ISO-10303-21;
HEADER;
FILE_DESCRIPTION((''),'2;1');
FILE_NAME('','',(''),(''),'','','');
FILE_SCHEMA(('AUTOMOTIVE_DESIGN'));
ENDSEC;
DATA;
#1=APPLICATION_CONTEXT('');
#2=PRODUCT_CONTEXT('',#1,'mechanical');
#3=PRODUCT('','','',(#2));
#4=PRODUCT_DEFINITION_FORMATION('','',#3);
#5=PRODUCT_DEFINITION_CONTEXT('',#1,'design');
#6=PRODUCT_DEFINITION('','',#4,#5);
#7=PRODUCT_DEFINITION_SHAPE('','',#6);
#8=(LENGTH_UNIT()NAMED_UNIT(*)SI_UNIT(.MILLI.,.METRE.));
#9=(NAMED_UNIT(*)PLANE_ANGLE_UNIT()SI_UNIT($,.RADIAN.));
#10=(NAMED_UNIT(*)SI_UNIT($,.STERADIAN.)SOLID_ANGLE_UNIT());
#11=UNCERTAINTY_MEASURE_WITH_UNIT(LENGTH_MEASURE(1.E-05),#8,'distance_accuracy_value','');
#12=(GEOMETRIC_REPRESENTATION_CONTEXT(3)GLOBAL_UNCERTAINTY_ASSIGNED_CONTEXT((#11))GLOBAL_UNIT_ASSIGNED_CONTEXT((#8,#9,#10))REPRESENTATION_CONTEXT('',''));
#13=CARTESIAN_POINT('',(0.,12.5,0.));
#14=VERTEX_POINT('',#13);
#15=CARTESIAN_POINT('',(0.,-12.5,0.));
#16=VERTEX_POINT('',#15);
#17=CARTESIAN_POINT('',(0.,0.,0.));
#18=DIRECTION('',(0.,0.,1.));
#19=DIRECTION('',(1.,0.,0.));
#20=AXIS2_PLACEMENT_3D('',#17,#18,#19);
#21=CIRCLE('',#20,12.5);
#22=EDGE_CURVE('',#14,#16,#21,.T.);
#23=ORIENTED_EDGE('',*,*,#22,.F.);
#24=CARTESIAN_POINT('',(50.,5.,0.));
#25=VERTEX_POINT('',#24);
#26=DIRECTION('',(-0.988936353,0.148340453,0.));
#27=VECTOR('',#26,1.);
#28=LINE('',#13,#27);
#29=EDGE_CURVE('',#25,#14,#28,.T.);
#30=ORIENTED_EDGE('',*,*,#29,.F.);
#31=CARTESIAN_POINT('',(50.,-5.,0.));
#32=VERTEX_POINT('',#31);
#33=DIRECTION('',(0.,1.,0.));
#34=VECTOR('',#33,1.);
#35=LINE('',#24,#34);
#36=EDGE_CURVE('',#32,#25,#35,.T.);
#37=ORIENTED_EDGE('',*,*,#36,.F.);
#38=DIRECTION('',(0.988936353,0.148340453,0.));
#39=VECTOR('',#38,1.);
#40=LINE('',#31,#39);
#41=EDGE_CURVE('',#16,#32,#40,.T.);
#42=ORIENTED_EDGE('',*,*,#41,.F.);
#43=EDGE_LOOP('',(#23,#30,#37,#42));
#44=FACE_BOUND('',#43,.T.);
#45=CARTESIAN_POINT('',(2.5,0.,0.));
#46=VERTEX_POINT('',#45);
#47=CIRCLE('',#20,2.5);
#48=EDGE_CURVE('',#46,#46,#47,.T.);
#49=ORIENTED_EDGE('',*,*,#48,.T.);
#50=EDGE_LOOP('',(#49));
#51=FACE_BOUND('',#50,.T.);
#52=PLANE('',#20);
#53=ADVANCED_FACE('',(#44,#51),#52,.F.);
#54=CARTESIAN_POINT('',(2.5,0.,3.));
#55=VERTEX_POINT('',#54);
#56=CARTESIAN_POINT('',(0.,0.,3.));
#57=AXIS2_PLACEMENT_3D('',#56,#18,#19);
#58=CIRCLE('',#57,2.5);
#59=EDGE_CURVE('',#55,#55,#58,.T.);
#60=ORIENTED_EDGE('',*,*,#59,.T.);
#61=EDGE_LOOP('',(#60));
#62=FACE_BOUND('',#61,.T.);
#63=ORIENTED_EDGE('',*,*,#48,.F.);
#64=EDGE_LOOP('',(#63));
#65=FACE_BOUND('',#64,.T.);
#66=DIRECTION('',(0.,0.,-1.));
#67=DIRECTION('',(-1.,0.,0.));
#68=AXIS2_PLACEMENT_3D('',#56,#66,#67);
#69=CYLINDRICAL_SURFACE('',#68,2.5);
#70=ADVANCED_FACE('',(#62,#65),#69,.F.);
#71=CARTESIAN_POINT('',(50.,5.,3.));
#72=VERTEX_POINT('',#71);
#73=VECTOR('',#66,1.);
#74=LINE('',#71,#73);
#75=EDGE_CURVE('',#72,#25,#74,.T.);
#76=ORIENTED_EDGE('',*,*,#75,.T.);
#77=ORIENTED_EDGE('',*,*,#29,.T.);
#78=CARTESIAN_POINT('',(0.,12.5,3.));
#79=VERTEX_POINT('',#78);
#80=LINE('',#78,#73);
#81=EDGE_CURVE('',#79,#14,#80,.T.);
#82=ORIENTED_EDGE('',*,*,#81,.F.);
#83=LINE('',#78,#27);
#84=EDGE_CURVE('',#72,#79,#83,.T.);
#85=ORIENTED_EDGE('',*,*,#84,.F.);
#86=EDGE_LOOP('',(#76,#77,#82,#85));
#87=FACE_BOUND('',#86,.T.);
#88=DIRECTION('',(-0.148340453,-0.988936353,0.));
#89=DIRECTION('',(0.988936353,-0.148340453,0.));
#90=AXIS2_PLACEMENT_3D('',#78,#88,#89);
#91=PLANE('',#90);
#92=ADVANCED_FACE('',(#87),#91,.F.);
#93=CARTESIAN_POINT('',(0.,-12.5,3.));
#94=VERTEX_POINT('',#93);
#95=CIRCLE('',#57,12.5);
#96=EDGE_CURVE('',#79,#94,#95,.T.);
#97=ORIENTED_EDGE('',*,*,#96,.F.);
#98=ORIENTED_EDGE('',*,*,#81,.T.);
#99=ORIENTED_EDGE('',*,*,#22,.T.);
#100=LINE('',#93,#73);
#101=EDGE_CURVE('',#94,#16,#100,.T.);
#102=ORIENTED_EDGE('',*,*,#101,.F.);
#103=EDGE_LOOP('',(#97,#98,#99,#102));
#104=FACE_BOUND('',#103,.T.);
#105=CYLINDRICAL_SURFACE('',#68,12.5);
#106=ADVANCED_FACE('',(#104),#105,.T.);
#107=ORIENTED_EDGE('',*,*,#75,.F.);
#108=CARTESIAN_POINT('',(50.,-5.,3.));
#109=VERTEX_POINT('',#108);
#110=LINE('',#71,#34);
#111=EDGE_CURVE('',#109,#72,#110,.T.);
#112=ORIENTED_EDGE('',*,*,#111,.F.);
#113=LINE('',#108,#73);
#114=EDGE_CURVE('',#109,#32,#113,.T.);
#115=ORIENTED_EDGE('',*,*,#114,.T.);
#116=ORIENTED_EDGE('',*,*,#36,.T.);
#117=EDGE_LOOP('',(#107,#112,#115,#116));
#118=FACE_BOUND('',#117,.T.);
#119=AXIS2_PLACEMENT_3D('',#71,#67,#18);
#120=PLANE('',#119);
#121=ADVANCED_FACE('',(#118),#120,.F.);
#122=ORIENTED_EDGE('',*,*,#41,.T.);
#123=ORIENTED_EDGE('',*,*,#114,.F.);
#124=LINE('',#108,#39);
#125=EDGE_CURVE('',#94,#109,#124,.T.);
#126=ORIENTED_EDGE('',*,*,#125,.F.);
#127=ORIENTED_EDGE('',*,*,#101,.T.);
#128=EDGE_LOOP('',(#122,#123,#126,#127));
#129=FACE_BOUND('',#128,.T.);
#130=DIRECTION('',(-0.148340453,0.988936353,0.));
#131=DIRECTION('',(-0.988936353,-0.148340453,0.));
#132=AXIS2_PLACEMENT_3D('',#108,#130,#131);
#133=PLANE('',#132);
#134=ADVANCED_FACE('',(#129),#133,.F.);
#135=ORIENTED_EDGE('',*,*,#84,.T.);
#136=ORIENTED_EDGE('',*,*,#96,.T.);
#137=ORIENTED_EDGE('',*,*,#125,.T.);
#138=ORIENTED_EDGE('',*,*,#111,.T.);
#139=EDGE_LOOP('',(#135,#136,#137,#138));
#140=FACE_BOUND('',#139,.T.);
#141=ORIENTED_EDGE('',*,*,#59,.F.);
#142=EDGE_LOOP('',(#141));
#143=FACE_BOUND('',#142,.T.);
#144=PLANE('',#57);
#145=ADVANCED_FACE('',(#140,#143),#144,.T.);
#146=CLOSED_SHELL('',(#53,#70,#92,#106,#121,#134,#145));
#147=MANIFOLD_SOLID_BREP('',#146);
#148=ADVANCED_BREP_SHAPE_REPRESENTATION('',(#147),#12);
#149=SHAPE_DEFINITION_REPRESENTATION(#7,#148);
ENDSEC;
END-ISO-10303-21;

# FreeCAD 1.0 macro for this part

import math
import FreeCAD as App
import Part
import Sketcher

V = App.Vector
Q = App.Units.Quantity

doc = App.newDocument("Part")
body = doc.addObject("PartDesign::Body", "Body")

# Sketch on XY plane
sketch1 = doc.addObject("Sketcher::SketchObject", "Sketch")
body.addObject(sketch1)
sketch1.AttachmentSupport = (doc.XY_Plane, [""])
sketch1.MapMode = "FlatFace"
sketch1.addGeometry([
    Part.LineSegment(V(50, 5, 0), V(0, 12.5, 0)),  # 0
    Part.ArcOfCircle(Part.Circle(V(0, 0, 0), V(0, 0, 1), 12.5), math.radians(90), math.radians(270)),  # 1
    Part.LineSegment(V(0, -12.5, 0), V(50, -5, 0)),  # 2
    Part.LineSegment(V(50, -5, 0), V(50, 5, 0)),  # 3
    Part.Circle(V(0, 0, 0), V(0, 0, 1), 2.5),  # 4
], False)
sketch1.addConstraint([
    Sketcher.Constraint("Coincident", 0, 2, 1, 1),
    Sketcher.Constraint("Coincident", 1, 2, 2, 1),
    Sketcher.Constraint("Coincident", 2, 2, 3, 1),
    Sketcher.Constraint("Coincident", 3, 2, 0, 1),
    Sketcher.Constraint("Vertical", 3),
    Sketcher.Constraint("Coincident", 1, 3, -1, 1),
    Sketcher.Constraint("Coincident", 4, 3, -1, 1),
    Sketcher.Constraint("PointOnObject", 0, 2, -2),
    Sketcher.Constraint("PointOnObject", 1, 2, -2),
    Sketcher.Constraint("Equal", 0, 2),
    Sketcher.Constraint("Diameter", 4, Q("5 mm")),
    Sketcher.Constraint("Radius", 1, Q("12.5 mm")),
    Sketcher.Constraint("DistanceY", 3, 1, 3, 2, Q("10 mm")),
    Sketcher.Constraint("DistanceX", -1, 1, 2, 2, Q("50 mm")),
])
pad1 = doc.addObject("PartDesign::Pad", "Pad")
body.addObject(pad1)
pad1.Profile = sketch1
pad1.Length = 3

doc.recompute()
